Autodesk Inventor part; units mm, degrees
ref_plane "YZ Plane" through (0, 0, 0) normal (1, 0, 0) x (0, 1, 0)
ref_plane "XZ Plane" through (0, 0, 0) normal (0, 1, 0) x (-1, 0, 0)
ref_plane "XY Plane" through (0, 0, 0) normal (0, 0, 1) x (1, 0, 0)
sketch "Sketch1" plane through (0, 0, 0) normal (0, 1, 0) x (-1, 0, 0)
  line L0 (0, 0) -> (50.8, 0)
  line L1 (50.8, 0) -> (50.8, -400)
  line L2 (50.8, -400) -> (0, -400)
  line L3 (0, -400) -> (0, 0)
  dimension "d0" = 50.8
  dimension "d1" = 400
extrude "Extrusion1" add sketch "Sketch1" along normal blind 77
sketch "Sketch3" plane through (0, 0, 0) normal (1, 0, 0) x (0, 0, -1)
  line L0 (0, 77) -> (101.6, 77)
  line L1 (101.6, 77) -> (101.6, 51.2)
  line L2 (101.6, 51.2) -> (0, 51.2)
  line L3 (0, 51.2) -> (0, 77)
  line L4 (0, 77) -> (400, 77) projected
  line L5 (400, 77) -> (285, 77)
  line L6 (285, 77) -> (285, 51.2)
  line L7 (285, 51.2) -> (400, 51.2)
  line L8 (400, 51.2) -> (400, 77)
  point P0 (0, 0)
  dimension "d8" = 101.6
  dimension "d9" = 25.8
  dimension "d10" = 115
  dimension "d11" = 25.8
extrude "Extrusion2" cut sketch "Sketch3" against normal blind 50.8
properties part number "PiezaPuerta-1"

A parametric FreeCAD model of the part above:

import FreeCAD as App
import Part
import Sketcher
from FreeCAD import Vector
Q = App.Units.Quantity

doc = App.newDocument("Part")
body = doc.addObject("PartDesign::Body", "Body")

# Sketch on XZ plane
sketch1 = body.newObject("Sketcher::SketchObject", "Sketch")
sketch1.AttachmentSupport = (doc.getObject("XZ_Plane"), [""])
sketch1.MapMode = "FlatFace"
sketch1.addGeometry(Part.LineSegment(Vector(-51, 0, 0), Vector(0, 0, 0)), False)
sketch1.addGeometry(Part.LineSegment(Vector(0, 0, 0), Vector(0, -400, 0)), False)
sketch1.addGeometry(Part.LineSegment(Vector(0, -400, 0), Vector(-51, -400, 0)), False)
sketch1.addGeometry(Part.LineSegment(Vector(-51, -400, 0), Vector(-51, 0, 0)), False)
sketch1.addConstraint(Sketcher.Constraint("Coincident", 0, 2, 1, 1))
sketch1.addConstraint(Sketcher.Constraint("Coincident", 1, 2, 2, 1))
sketch1.addConstraint(Sketcher.Constraint("Coincident", 2, 2, 3, 1))
sketch1.addConstraint(Sketcher.Constraint("Coincident", 3, 2, 0, 1))
sketch1.addConstraint(Sketcher.Constraint("Horizontal", 0))
sketch1.addConstraint(Sketcher.Constraint("Vertical", 1))
sketch1.addConstraint(Sketcher.Constraint("Horizontal", 2))
sketch1.addConstraint(Sketcher.Constraint("Vertical", 3))
sketch1.addConstraint(Sketcher.Constraint("Coincident", 0, 2, -1, 1))
sketch1.addConstraint(Sketcher.Constraint("DistanceY", 1, 2, 1, 1, Q("400 mm")))
sketch1.addConstraint(Sketcher.Constraint("DistanceX", 0, 1, 0, 2, Q("50.8 mm")))
pad1 = body.newObject("PartDesign::Pad", "Pad")
pad1.Profile = sketch1
pad1.Length = 77
pad1.Reversed = True

# Sketch on YZ plane
sketch2 = body.newObject("Sketcher::SketchObject", "Sketch001")
sketch2.AttachmentSupport = (doc.getObject("YZ_Plane"), [""])
sketch2.MapMode = "FlatFace"
sketch2.addGeometry(Part.LineSegment(Vector(77, -400, 0), Vector(77, -285, 0)), False)
sketch2.addGeometry(Part.LineSegment(Vector(77, -285, 0), Vector(51, -285, 0)), False)
sketch2.addGeometry(Part.LineSegment(Vector(51, -285, 0), Vector(51, -400, 0)), False)
sketch2.addGeometry(Part.LineSegment(Vector(51, -400, 0), Vector(77, -400, 0)), False)
sketch2.addGeometry(Part.LineSegment(Vector(77, -102, 0), Vector(77, 0, 0)), False)
sketch2.addGeometry(Part.LineSegment(Vector(77, 0, 0), Vector(51, 0, 0)), False)
sketch2.addGeometry(Part.LineSegment(Vector(51, 0, 0), Vector(51, -102, 0)), False)
sketch2.addGeometry(Part.LineSegment(Vector(51, -102, 0), Vector(77, -102, 0)), False)
sketch2.addConstraint(Sketcher.Constraint("Coincident", 0, 2, 1, 1))
sketch2.addConstraint(Sketcher.Constraint("Coincident", 1, 2, 2, 1))
sketch2.addConstraint(Sketcher.Constraint("Coincident", 2, 2, 3, 1))
sketch2.addConstraint(Sketcher.Constraint("Coincident", 3, 2, 0, 1))
sketch2.addConstraint(Sketcher.Constraint("Coincident", 4, 2, 5, 1))
sketch2.addConstraint(Sketcher.Constraint("Coincident", 5, 2, 6, 1))
sketch2.addConstraint(Sketcher.Constraint("Coincident", 6, 2, 7, 1))
sketch2.addConstraint(Sketcher.Constraint("Coincident", 7, 2, 4, 1))
sketch2.addConstraint(Sketcher.Constraint("Vertical", 0))
sketch2.addConstraint(Sketcher.Constraint("Horizontal", 1))
sketch2.addConstraint(Sketcher.Constraint("Vertical", 2))
sketch2.addConstraint(Sketcher.Constraint("Horizontal", 3))
sketch2.addConstraint(Sketcher.Constraint("Vertical", 4))
sketch2.addConstraint(Sketcher.Constraint("Horizontal", 5))
sketch2.addConstraint(Sketcher.Constraint("Vertical", 6))
sketch2.addConstraint(Sketcher.Constraint("Horizontal", 7))
sketch2.addConstraint(Sketcher.Constraint("PointOnObject", 4, 2, -1))
sketch2.addConstraint(Sketcher.Constraint("Vertical", 3, 2, 4, 2))
sketch2.addConstraint(Sketcher.Constraint("Vertical", 2, 2, 5, 2))
sketch2.addConstraint(Sketcher.Constraint("DistanceY", 0, 1, 0, 2, Q("115 mm")))
sketch2.addConstraint(Sketcher.Constraint("DistanceX", 1, 2, 1, 1, Q("25.8 mm")))
sketch2.addConstraint(Sketcher.Constraint("DistanceY", 4, 1, 4, 2, Q("101.6 mm")))
sketch2.addConstraint(Sketcher.Constraint("DistanceX", -1, 1, 0, 2, Q("77 mm")))
sketch2.addConstraint(Sketcher.Constraint("DistanceY", 0, 2, -1, 1, Q("285 mm")))
pocket1 = body.newObject("PartDesign::Pocket", "Pocket")
pocket1.Profile = sketch2
pocket1.Length = 50.8

doc.recompute()
